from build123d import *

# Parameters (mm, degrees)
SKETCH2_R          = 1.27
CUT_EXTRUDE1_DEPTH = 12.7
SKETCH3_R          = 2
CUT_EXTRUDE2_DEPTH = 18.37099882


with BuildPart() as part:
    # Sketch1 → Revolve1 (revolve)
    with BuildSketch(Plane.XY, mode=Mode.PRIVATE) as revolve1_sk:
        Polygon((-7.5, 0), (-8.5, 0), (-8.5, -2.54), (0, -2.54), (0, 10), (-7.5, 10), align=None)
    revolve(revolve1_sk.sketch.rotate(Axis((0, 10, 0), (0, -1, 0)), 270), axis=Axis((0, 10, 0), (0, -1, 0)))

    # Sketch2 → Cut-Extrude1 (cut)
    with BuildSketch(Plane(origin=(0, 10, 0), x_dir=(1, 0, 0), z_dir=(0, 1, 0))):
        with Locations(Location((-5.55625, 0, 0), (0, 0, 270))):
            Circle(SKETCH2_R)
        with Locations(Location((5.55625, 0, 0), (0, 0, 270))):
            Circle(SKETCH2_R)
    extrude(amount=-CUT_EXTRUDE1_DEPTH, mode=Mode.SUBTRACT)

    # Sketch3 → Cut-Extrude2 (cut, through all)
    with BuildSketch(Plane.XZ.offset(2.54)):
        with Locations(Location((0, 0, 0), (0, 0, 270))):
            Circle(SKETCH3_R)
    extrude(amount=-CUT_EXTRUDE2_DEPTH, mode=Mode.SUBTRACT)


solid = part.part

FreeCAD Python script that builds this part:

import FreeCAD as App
import Part
import Sketcher


def add_polygon(sketch, points):
    """Adds a closed chain of lines whose ends are joined by coincident constraints."""
    first, n = sketch.GeometryCount, len(points)
    for a, b in zip(points, points[1:] + points[:1]):
        sketch.addGeometry(Part.LineSegment(App.Vector(*a, 0), App.Vector(*b, 0)), False)
    for i in range(n):
        sketch.addConstraint(Sketcher.Constraint("Coincident", first + i, 2, first + (i + 1) % n, 1))

doc = App.newDocument("Part")
params = doc.addObject("Spreadsheet::Sheet", "Params")
for row, (alias, value) in enumerate([
    ("sketch1_width", "1 mm"),
    ("sketch1_height", "10 mm"),
    ("sketch1_width2", "8.5 mm"),
    ("sketch1_height2", "2.54 mm"),
    ("revolution_angle", "360 deg"),
    ("sketch2_diameter", "2.54 mm"),
    ("pocket1_length", "12.7 mm"),
    ("sketch3_diameter", "4 mm"),
], start=1):
    params.set(f"A{row}", alias)
    params.set(f"B{row}", "=" + value)
    params.setAlias(f"B{row}", alias)

body = doc.addObject("PartDesign::Body", "Body")

# Sketch on XY plane
sketch1 = body.newObject("Sketcher::SketchObject", "Sketch")
sketch1.AttachmentSupport = (doc.getObject("XY_Plane"), [""])
sketch1.MapMode = "FlatFace"
add_polygon(sketch1, [(-7.5, 0), (-8.5, 0), (-8.5, -2.5), (0, -2.5), (0, 10), (-7.5, 10)])  # lines 0-5
sketch1.addConstraint([
    Sketcher.Constraint("Horizontal", 0),
    Sketcher.Constraint("Vertical", 1),
    Sketcher.Constraint("Horizontal", 2),
    Sketcher.Constraint("Vertical", 3),
    Sketcher.Constraint("Horizontal", 4),
    Sketcher.Constraint("Vertical", 5),
    Sketcher.Constraint("PointOnObject", 0, 2, -1),
    Sketcher.Constraint("PointOnObject", 2, 2, -2),
    Sketcher.Constraint("DistanceX", 0, 2, 0, 1, 1.0),
    Sketcher.Constraint("DistanceY", 5, 2, 5, 1, 10.0),
    Sketcher.Constraint("DistanceX", 2, 1, 2, 2, 8.5),
    Sketcher.Constraint("DistanceY", 1, 2, 1, 1, 2.54),
])
sketch1.setExpression("Constraints[14]", "Params.sketch1_width")
sketch1.setExpression("Constraints[15]", "Params.sketch1_height")
sketch1.setExpression("Constraints[16]", "Params.sketch1_width2")
sketch1.setExpression("Constraints[17]", "Params.sketch1_height2")
revolution = body.newObject("PartDesign::Revolution", "Revolution")
revolution.Profile = sketch1
revolution.ReferenceAxis = (sketch1, ["V_Axis"])
revolution.setExpression("Angle", "Params.revolution_angle")

# Sketch on XZ plane
sketch2 = body.newObject("Sketcher::SketchObject", "Sketch001")
sketch2.AttachmentSupport = (doc.getObject("XZ_Plane"), [""])
sketch2.MapMode = "FlatFace"
sketch2.AttachmentOffset = App.Placement(App.Vector(0, 0, -10), App.Rotation())
sketch2.addGeometry([
    Part.Circle(App.Vector(-5.6, 0, 0), App.Vector(0, 0, 1), 1.3),
    Part.Circle(App.Vector(5.6, 0, 0), App.Vector(0, 0, 1), 1.3),
], False)
sketch2.addConstraint([
    Sketcher.Constraint("Equal", 0, 1),
    Sketcher.Constraint("Symmetric", 0, 3, 1, 3, -1, 1),
    Sketcher.Constraint("PointOnObject", 0, 3, -1),
    Sketcher.Constraint("Diameter", 0, 2.54),
    Sketcher.Constraint("DistanceX", 0, 3, 1, 3, 11.1125),
])
sketch2.setExpression("Constraints[3]", "Params.sketch2_diameter")
pocket1 = body.newObject("PartDesign::Pocket", "Pocket")
pocket1.Profile = sketch2
pocket1.setExpression("Length", "Params.pocket1_length")
pocket1.Reversed = True

# Sketch on XZ plane
sketch3 = body.newObject("Sketcher::SketchObject", "Sketch002")
sketch3.AttachmentSupport = (doc.getObject("XZ_Plane"), [""])
sketch3.MapMode = "FlatFace"
sketch3.AttachmentOffset = App.Placement(App.Vector(0, 0, 2.54), App.Rotation())
sketch3.addGeometry(Part.Circle(App.Vector(0, 0, 0), App.Vector(0, 0, 1), 2), False)
sketch3.addConstraint([
    Sketcher.Constraint("Coincident", 0, 3, -1, 1),
    Sketcher.Constraint("Diameter", 0, 4.0),
])
sketch3.setExpression("Constraints[1]", "Params.sketch3_diameter")
pocket2 = body.newObject("PartDesign::Pocket", "Pocket001")
pocket2.Profile = sketch3
pocket2.Type = "ThroughAll"

doc.recompute()
